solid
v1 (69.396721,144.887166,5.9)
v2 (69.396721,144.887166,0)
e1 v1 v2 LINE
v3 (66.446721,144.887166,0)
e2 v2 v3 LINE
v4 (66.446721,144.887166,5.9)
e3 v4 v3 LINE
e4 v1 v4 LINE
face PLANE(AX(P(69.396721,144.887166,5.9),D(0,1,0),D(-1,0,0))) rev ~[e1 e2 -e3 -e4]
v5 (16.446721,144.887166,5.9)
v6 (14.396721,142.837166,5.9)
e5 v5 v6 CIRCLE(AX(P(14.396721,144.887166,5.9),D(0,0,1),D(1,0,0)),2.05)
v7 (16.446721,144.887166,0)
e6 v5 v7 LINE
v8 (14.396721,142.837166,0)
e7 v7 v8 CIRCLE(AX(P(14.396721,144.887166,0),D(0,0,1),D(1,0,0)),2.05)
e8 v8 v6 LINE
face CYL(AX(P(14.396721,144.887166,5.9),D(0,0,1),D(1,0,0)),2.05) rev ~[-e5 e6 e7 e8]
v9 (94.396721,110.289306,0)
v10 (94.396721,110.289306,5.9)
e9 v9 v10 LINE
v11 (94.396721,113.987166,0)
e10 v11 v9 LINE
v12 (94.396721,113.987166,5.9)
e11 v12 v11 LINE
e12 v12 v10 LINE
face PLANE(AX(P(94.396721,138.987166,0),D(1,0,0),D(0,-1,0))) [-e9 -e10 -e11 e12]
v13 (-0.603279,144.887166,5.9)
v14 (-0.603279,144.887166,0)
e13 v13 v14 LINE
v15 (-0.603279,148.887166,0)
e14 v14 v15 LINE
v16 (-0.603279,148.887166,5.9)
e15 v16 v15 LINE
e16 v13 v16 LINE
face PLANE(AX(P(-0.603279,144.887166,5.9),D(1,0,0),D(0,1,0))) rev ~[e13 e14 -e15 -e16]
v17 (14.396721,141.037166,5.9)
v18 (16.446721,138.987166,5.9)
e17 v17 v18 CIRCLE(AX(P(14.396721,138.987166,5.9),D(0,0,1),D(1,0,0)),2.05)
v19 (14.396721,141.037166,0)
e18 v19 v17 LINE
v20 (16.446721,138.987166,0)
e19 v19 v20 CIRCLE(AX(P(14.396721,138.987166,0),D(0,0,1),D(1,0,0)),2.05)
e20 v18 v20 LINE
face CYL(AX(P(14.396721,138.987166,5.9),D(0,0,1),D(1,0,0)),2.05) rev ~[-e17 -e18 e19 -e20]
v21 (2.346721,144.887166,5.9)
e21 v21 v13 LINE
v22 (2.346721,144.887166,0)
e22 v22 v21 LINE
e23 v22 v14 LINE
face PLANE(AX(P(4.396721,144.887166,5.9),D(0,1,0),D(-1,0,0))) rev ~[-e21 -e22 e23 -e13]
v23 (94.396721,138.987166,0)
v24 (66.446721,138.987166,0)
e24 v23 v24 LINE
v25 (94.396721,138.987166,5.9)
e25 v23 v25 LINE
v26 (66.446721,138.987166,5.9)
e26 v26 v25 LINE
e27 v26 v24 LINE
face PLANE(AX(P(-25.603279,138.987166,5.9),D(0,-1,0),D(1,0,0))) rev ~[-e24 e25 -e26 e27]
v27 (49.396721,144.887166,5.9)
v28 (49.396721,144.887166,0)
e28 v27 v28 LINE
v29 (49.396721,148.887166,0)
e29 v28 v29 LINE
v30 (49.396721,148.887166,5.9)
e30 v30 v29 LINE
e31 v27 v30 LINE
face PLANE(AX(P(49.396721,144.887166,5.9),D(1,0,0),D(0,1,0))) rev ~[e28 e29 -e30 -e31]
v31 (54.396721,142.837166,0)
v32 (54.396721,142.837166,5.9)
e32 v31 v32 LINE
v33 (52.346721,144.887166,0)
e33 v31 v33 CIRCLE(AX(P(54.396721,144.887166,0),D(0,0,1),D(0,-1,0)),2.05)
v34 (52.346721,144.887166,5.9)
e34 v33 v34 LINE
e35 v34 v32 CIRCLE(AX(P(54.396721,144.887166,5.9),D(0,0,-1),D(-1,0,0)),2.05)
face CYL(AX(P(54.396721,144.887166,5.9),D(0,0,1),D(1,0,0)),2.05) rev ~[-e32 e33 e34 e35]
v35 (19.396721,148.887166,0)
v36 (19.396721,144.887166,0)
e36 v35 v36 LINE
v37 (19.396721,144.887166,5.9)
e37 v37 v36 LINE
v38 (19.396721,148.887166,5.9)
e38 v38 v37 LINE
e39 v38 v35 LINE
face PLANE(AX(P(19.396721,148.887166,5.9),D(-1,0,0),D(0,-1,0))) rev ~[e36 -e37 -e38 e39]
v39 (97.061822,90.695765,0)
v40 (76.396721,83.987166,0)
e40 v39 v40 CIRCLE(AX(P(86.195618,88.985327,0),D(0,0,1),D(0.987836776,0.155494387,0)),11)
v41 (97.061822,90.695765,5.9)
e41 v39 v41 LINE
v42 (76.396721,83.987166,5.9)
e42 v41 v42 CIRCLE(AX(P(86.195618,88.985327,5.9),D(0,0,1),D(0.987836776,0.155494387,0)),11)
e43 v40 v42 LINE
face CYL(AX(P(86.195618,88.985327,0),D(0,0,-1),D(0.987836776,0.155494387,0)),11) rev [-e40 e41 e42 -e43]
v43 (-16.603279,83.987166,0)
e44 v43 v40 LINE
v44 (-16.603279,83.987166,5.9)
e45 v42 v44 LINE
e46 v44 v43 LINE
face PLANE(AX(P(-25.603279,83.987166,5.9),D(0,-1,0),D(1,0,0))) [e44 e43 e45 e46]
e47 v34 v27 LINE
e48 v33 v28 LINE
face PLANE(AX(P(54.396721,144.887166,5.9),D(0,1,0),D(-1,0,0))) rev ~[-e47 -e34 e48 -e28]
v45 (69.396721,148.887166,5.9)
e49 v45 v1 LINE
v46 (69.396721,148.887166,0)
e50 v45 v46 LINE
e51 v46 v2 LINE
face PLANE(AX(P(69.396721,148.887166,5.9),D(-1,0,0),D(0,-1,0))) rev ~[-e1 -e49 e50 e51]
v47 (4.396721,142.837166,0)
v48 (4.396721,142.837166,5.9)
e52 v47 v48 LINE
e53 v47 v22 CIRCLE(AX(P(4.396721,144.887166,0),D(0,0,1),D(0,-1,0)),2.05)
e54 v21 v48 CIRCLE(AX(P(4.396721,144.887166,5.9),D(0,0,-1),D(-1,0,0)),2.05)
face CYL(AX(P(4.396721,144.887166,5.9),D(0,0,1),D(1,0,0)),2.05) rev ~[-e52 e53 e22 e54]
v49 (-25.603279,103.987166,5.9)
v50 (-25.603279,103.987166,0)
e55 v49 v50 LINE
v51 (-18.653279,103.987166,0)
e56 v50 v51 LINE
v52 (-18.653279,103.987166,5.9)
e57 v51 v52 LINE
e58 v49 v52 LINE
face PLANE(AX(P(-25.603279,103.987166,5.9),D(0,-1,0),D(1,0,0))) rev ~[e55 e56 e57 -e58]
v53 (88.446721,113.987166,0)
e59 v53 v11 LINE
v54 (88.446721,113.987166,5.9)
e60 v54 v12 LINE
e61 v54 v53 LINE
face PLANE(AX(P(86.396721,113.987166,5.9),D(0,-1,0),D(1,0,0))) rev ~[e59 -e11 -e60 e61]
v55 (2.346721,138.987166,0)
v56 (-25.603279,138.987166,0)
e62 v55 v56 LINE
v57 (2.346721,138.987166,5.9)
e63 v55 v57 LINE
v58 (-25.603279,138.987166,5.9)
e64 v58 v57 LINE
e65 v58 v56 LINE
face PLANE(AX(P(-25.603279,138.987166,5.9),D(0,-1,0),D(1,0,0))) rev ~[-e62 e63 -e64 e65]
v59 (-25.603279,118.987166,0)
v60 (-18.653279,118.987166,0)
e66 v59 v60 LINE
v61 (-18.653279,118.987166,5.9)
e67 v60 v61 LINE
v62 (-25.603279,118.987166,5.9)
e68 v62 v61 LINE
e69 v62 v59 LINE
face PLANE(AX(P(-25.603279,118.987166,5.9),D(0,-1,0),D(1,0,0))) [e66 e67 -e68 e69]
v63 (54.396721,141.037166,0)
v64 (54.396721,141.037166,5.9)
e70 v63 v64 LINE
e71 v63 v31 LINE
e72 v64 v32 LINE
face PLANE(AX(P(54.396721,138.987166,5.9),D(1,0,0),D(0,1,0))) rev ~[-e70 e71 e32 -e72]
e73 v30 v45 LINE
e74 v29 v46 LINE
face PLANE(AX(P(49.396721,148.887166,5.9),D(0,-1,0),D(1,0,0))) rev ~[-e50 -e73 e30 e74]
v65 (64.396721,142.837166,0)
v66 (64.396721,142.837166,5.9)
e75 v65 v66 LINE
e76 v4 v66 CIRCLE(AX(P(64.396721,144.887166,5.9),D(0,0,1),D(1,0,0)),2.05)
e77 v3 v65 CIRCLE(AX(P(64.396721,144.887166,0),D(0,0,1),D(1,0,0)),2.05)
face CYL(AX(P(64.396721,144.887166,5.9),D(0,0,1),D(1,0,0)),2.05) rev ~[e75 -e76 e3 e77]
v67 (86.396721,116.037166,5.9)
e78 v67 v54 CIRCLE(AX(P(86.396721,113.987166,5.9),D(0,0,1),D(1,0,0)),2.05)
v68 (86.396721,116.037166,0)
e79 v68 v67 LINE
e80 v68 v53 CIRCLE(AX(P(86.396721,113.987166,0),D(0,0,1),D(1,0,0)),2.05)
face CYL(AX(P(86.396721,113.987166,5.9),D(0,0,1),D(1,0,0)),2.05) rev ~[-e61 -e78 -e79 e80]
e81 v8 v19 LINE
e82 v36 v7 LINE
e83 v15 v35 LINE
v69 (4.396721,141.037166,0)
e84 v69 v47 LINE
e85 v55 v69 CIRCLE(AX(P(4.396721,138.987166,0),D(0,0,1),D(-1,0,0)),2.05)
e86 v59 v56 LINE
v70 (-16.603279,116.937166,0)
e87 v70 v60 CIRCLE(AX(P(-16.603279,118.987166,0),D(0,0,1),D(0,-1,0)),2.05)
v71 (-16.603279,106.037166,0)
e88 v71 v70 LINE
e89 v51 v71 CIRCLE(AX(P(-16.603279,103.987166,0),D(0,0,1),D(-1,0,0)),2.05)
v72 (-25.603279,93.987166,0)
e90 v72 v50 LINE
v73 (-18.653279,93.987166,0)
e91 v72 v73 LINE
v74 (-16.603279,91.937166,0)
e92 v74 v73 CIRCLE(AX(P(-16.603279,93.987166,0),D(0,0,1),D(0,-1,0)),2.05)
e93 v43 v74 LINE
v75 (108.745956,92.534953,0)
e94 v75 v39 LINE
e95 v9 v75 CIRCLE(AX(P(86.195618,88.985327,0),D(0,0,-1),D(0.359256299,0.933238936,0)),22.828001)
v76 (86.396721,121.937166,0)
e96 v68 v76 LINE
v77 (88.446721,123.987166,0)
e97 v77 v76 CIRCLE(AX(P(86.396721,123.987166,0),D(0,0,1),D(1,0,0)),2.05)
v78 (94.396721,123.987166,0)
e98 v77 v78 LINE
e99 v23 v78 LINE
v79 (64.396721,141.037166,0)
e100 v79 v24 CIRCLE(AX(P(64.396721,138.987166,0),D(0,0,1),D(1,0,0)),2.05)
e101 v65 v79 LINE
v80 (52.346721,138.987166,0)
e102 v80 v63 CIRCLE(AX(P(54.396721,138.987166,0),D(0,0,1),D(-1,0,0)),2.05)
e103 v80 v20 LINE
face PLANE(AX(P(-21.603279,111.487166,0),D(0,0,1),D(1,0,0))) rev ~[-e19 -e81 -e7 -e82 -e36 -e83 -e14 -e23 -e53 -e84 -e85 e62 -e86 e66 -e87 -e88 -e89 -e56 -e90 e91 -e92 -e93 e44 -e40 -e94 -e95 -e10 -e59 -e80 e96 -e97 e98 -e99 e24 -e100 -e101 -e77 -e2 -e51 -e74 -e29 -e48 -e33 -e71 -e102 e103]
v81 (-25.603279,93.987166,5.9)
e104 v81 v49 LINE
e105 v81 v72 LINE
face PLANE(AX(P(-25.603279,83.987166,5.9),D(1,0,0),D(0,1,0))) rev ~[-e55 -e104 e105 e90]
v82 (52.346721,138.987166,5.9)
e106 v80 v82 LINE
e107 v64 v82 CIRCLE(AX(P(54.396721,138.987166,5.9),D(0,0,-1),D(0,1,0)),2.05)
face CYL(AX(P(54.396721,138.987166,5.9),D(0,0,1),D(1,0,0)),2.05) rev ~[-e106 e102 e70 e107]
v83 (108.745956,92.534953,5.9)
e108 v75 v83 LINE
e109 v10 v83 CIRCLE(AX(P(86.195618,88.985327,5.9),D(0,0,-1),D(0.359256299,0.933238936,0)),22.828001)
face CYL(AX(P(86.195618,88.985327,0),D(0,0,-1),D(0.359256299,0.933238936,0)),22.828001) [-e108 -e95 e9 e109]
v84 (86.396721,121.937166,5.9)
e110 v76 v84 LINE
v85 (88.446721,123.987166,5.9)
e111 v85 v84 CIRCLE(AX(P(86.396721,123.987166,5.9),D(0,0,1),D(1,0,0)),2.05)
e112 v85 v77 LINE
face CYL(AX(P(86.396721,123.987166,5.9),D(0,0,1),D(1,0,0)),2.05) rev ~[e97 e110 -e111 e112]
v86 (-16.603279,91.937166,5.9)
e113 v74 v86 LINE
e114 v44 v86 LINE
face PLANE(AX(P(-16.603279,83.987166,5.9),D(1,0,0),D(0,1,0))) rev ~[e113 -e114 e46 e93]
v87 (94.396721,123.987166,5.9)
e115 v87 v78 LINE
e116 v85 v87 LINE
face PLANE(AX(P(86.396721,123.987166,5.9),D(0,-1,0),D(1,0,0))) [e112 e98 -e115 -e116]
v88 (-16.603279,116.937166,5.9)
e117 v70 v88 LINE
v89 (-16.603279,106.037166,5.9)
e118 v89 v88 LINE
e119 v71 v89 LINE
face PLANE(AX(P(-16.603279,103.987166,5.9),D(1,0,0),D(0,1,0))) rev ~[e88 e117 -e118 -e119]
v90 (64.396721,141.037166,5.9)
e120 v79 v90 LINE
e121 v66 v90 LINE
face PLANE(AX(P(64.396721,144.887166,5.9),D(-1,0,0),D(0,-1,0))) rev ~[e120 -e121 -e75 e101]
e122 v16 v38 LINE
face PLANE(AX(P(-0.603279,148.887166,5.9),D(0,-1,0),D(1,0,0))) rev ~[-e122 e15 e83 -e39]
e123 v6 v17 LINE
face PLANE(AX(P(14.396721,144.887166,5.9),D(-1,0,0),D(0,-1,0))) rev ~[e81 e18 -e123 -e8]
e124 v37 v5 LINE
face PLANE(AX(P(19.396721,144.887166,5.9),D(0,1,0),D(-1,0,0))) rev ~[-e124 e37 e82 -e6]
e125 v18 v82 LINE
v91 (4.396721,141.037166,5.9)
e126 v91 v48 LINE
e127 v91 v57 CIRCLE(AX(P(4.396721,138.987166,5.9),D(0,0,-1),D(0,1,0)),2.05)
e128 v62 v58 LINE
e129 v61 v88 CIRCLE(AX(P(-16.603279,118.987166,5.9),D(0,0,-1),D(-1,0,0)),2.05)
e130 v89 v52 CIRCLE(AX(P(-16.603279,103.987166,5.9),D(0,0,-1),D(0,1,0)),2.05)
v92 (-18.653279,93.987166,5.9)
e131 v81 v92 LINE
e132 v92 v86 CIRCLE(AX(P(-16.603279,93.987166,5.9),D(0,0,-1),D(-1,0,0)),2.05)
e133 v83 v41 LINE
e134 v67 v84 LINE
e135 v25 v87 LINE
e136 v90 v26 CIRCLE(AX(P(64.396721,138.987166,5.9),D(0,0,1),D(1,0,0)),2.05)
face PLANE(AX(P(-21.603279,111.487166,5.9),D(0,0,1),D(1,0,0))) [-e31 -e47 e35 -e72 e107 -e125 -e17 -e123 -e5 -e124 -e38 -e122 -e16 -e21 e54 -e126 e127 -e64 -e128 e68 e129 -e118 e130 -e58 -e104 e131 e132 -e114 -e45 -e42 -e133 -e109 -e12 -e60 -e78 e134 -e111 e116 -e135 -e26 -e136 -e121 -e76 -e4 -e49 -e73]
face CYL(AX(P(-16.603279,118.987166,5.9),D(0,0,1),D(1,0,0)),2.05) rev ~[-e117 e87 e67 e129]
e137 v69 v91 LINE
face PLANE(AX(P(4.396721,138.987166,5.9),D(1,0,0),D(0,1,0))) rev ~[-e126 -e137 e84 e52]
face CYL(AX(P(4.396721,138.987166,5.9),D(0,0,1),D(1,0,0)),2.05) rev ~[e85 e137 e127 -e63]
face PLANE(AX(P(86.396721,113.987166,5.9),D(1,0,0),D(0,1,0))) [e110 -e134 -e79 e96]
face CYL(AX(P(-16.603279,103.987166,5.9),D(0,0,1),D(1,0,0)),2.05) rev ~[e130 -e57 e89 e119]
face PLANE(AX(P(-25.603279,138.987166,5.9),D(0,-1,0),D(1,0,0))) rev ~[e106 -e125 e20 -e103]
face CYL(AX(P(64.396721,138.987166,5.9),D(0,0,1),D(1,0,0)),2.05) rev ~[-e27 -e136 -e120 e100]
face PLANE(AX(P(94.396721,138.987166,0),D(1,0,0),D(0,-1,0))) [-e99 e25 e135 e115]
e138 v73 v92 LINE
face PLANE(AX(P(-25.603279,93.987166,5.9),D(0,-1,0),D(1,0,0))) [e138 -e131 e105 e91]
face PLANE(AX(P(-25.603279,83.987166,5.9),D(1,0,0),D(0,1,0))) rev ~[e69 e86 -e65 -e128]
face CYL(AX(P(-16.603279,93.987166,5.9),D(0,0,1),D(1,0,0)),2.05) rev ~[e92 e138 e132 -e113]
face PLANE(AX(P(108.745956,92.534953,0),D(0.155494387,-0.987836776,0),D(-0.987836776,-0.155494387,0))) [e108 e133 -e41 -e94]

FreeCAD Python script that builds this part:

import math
import FreeCAD as App
import Part
import Sketcher

V = App.Vector
Q = App.Units.Quantity

doc = App.newDocument("Part")
body = doc.addObject("PartDesign::Body", "Body")

# Sketch on XY plane
sketch1 = body.newObject("Sketcher::SketchObject", "Sketch")
sketch1.AttachmentSupport = (doc.getObject("XY_Plane"), [""])
sketch1.MapMode = "FlatFace"
sketch1.addGeometry([
    Part.ArcOfCircle(Part.Circle(V(86.195618, 88.985327, 0), V(0, 0, 1), 11), math.radians(8.94547), math.radians(207.024942)),  # 0
    Part.LineSegment(V(97.061822, 90.695765, 0), V(108.745956, 92.534953, 0)),  # 1
    Part.ArcOfCircle(Part.Circle(V(86.195618, 88.985327, 0), V(0, 0, 1), 22.828001), math.radians(8.94547), math.radians(68.94547)),  # 2
    Part.LineSegment(V(94.396721, 110.289306, 0), V(94.396721, 138.987166, 0)),  # 3
    Part.LineSegment(V(94.396721, 138.987166, 0), V(-17.603279, 138.987166, 0)),  # 4
    Part.LineSegment(V(-17.603279, 138.987166, 0), V(-17.603279, 83.987166, 0)),  # 5
    Part.LineSegment(V(-17.603279, 83.987166, 0), V(76.396721, 83.987166, 0)),  # 6
], False)
sketch1.addConstraint([
    Sketcher.Constraint("Coincident", 0, 1, 1, 1),
    Sketcher.Constraint("Coincident", 1, 2, 2, 1),
    Sketcher.Constraint("Coincident", 2, 2, 3, 1),
    Sketcher.Constraint("Coincident", 3, 2, 4, 1),
    Sketcher.Constraint("Coincident", 4, 2, 5, 1),
    Sketcher.Constraint("Coincident", 5, 2, 6, 1),
    Sketcher.Constraint("Coincident", 6, 2, 0, 2),
    Sketcher.Constraint("Vertical", 3),
    Sketcher.Constraint("Horizontal", 4),
    Sketcher.Constraint("Vertical", 5),
    Sketcher.Constraint("Horizontal", 6),
    Sketcher.Constraint("Coincident", 2, 3, 0, 3),
    Sketcher.Constraint("Radius", 0, Q("11 mm")),
    Sketcher.Constraint("DistanceX", 4, 2, 4, 1, Q("112 mm")),
    Sketcher.Constraint("DistanceX", 6, 1, 6, 2, Q("94 mm")),
    Sketcher.Constraint("DistanceY", 5, 2, 5, 1, Q("55 mm")),
    Sketcher.Constraint("Radius", 2, Q("22.828001 mm")),
    Sketcher.Constraint("DistanceY", 3, 1, 3, 2, Q("28.697859 mm")),
    Sketcher.Constraint("DistanceX", 2, 2, 0, 1, Q("2.665101 mm")),
    Sketcher.Constraint("DistanceX", -1, 1, 2, 2, Q("94.396721 mm")),
    Sketcher.Constraint("DistanceX", 0, 3, 1, 2, Q("22.550339 mm")),
    Sketcher.Constraint("DistanceY", -1, 1, 0, 3, Q("88.985327 mm")),
])
pad1 = body.newObject("PartDesign::Pad", "Pad")
pad1.Profile = sketch1
pad1.Length = 5.9

# Sketch on XY plane
sketch2 = body.newObject("Sketcher::SketchObject", "Sketch001")
sketch2.AttachmentSupport = (doc.getObject("XY_Plane"), [""])
sketch2.MapMode = "FlatFace"
sketch2.AttachmentOffset = App.Placement(V(0, 0, 5.9), App.Rotation())
sketch2.addGeometry([
    Part.LineSegment(V(-25.603279, 138.987166, 0), V(-25.603279, 83.987166, 0)),
    Part.LineSegment(V(-25.603279, 83.987166, 0), V(-17.603279, 83.987166, 0)),
    Part.LineSegment(V(-17.603279, 83.987166, 0), V(-17.603279, 138.987166, 0)),
    Part.LineSegment(V(-17.603279, 138.987166, 0), V(-25.603279, 138.987166, 0)),
], False)
sketch2.addConstraint([
    Sketcher.Constraint("Coincident", 0, 2, 1, 1),
    Sketcher.Constraint("Coincident", 1, 2, 2, 1),
    Sketcher.Constraint("Coincident", 2, 2, 3, 1),
    Sketcher.Constraint("Coincident", 3, 2, 0, 1),
    Sketcher.Constraint("Vertical", 0),
    Sketcher.Constraint("Horizontal", 1),
    Sketcher.Constraint("Vertical", 2),
    Sketcher.Constraint("Horizontal", 3),
    Sketcher.Constraint("DistanceX", 1, 1, 1, 2, Q("8 mm")),
    Sketcher.Constraint("DistanceY", 0, 2, 0, 1, Q("55 mm")),
    Sketcher.Constraint("DistanceX", 0, 2, -1, 1, Q("25.603279 mm")),
    Sketcher.Constraint("DistanceY", -1, 1, 0, 2, Q("83.987166 mm")),
])
pad2 = body.newObject("PartDesign::Pad", "Pad001")
pad2.Profile = sketch2
pad2.Length = 5.9
pad2.Reversed = True

# Sketch on XY plane
sketch3 = body.newObject("Sketcher::SketchObject", "Sketch002")
sketch3.AttachmentSupport = (doc.getObject("XY_Plane"), [""])
sketch3.MapMode = "FlatFace"
sketch3.AttachmentOffset = App.Placement(V(0, 0, 5.9), App.Rotation())
sketch3.addGeometry([
    Part.LineSegment(V(-25.603279, 118.987166, 0), V(-25.603279, 103.987166, 0)),  # 0
    Part.LineSegment(V(-25.603279, 103.987166, 0), V(-16.603279, 103.987166, 0)),  # 1
    Part.LineSegment(V(-16.603279, 103.987166, 0), V(-16.603279, 118.987166, 0)),  # 2
    Part.LineSegment(V(-16.603279, 118.987166, 0), V(-25.603279, 118.987166, 0)),  # 3
    Part.LineSegment(V(86.396721, 123.987166, 0), V(86.396721, 113.987166, 0)),  # 4
    Part.LineSegment(V(86.396721, 113.987166, 0), V(94.396721, 113.987166, 0)),  # 5
    Part.LineSegment(V(94.396721, 113.987166, 0), V(94.396721, 123.987166, 0)),  # 6
    Part.LineSegment(V(94.396721, 123.987166, 0), V(86.396721, 123.987166, 0)),  # 7
    Part.LineSegment(V(-25.603279, 93.987166, 0), V(-25.603279, 83.987166, 0)),  # 8
    Part.LineSegment(V(-25.603279, 83.987166, 0), V(-16.603279, 83.987166, 0)),  # 9
    Part.LineSegment(V(-16.603279, 83.987166, 0), V(-16.603279, 93.987166, 0)),  # 10
    Part.LineSegment(V(-16.603279, 93.987166, 0), V(-25.603279, 93.987166, 0)),  # 11
], False)
sketch3.addConstraint([
    Sketcher.Constraint("Coincident", 0, 2, 1, 1),
    Sketcher.Constraint("Coincident", 1, 2, 2, 1),
    Sketcher.Constraint("Coincident", 2, 2, 3, 1),
    Sketcher.Constraint("Coincident", 3, 2, 0, 1),
    Sketcher.Constraint("Coincident", 4, 2, 5, 1),
    Sketcher.Constraint("Coincident", 5, 2, 6, 1),
    Sketcher.Constraint("Coincident", 6, 2, 7, 1),
    Sketcher.Constraint("Coincident", 7, 2, 4, 1),
    Sketcher.Constraint("Coincident", 8, 2, 9, 1),
    Sketcher.Constraint("Coincident", 9, 2, 10, 1),
    Sketcher.Constraint("Coincident", 10, 2, 11, 1),
    Sketcher.Constraint("Coincident", 11, 2, 8, 1),
    Sketcher.Constraint("Vertical", 0),
    Sketcher.Constraint("Horizontal", 1),
    Sketcher.Constraint("Vertical", 2),
    Sketcher.Constraint("Horizontal", 3),
    Sketcher.Constraint("Vertical", 4),
    Sketcher.Constraint("Horizontal", 5),
    Sketcher.Constraint("Vertical", 6),
    Sketcher.Constraint("Horizontal", 7),
    Sketcher.Constraint("Vertical", 8),
    Sketcher.Constraint("Horizontal", 9),
    Sketcher.Constraint("Vertical", 10),
    Sketcher.Constraint("Horizontal", 11),
    Sketcher.Constraint("Vertical", 3, 2, 8, 2),
    Sketcher.Constraint("Vertical", 2, 2, 9, 2),
    Sketcher.Constraint("Equal", 6, 8),
    Sketcher.Constraint("DistanceX", 1, 1, 1, 2, Q("9 mm")),
    Sketcher.Constraint("DistanceX", 5, 1, 5, 2, Q("8 mm")),
    Sketcher.Constraint("DistanceY", 0, 2, 0, 1, Q("15 mm")),
    Sketcher.Constraint("DistanceY", 4, 2, 4, 1, Q("10 mm")),
    Sketcher.Constraint("DistanceX", 2, 2, 4, 2, Q("103 mm")),
    Sketcher.Constraint("DistanceY", 4, 2, 2, 2, Q("5 mm")),
    Sketcher.Constraint("DistanceY", 8, 2, 0, 2, Q("20 mm")),
    Sketcher.Constraint("DistanceX", 0, 2, -1, 1, Q("25.603279 mm")),
    Sketcher.Constraint("DistanceY", -1, 1, 0, 2, Q("103.987166 mm")),
])
pocket1 = body.newObject("PartDesign::Pocket", "Pocket")
pocket1.Profile = sketch3
pocket1.Type = "ThroughAll"

# Sketch on XY plane
sketch4 = body.newObject("Sketcher::SketchObject", "Sketch003")
sketch4.AttachmentSupport = (doc.getObject("XY_Plane"), [""])
sketch4.MapMode = "FlatFace"
sketch4.AttachmentOffset = App.Placement(V(0, 0, 5.9), App.Rotation())
sketch4.addGeometry([
    Part.LineSegment(V(4.396721, 144.887166, 0), V(4.396721, 138.987166, 0)),  # 0
    Part.LineSegment(V(4.396721, 138.987166, 0), V(14.396721, 138.987166, 0)),  # 1
    Part.LineSegment(V(14.396721, 138.987166, 0), V(14.396721, 144.887166, 0)),  # 2
    Part.LineSegment(V(14.396721, 144.887166, 0), V(19.396721, 144.887166, 0)),  # 3
    Part.LineSegment(V(19.396721, 144.887166, 0), V(19.396721, 148.887166, 0)),  # 4
    Part.LineSegment(V(19.396721, 148.887166, 0), V(-0.603279, 148.887166, 0)),  # 5
    Part.LineSegment(V(-0.603279, 148.887166, 0), V(-0.603279, 144.887166, 0)),  # 6
    Part.LineSegment(V(-0.603279, 144.887166, 0), V(4.396721, 144.887166, 0)),  # 7
    Part.LineSegment(V(49.396721, 148.887166, 0), V(49.396721, 144.887166, 0)),  # 8
    Part.LineSegment(V(49.396721, 144.887166, 0), V(54.396721, 144.887166, 0)),  # 9
    Part.LineSegment(V(54.396721, 144.887166, 0), V(54.396721, 138.987166, 0)),  # 10
    Part.LineSegment(V(54.396721, 138.987166, 0), V(64.396721, 138.987166, 0)),  # 11
    Part.LineSegment(V(64.396721, 138.987166, 0), V(64.396721, 144.887166, 0)),  # 12
    Part.LineSegment(V(64.396721, 144.887166, 0), V(69.396721, 144.887166, 0)),  # 13
    Part.LineSegment(V(69.396721, 144.887166, 0), V(69.396721, 148.887166, 0)),  # 14
    Part.LineSegment(V(69.396721, 148.887166, 0), V(49.396721, 148.887166, 0)),  # 15
], False)
sketch4.addConstraint([
    Sketcher.Constraint("Coincident", 0, 2, 1, 1),
    Sketcher.Constraint("Coincident", 1, 2, 2, 1),
    Sketcher.Constraint("Coincident", 2, 2, 3, 1),
    Sketcher.Constraint("Coincident", 3, 2, 4, 1),
    Sketcher.Constraint("Coincident", 4, 2, 5, 1),
    Sketcher.Constraint("Coincident", 5, 2, 6, 1),
    Sketcher.Constraint("Coincident", 6, 2, 7, 1),
    Sketcher.Constraint("Coincident", 7, 2, 0, 1),
    Sketcher.Constraint("Coincident", 8, 2, 9, 1),
    Sketcher.Constraint("Coincident", 9, 2, 10, 1),
    Sketcher.Constraint("Coincident", 10, 2, 11, 1),
    Sketcher.Constraint("Coincident", 11, 2, 12, 1),
    Sketcher.Constraint("Coincident", 12, 2, 13, 1),
    Sketcher.Constraint("Coincident", 13, 2, 14, 1),
    Sketcher.Constraint("Coincident", 14, 2, 15, 1),
    Sketcher.Constraint("Coincident", 15, 2, 8, 1),
    Sketcher.Constraint("Vertical", 0),
    Sketcher.Constraint("Horizontal", 1),
    Sketcher.Constraint("Vertical", 2),
    Sketcher.Constraint("Horizontal", 3),
    Sketcher.Constraint("Vertical", 4),
    Sketcher.Constraint("Horizontal", 5),
    Sketcher.Constraint("Vertical", 6),
    Sketcher.Constraint("Horizontal", 7),
    Sketcher.Constraint("Vertical", 8),
    Sketcher.Constraint("Horizontal", 9),
    Sketcher.Constraint("Vertical", 10),
    Sketcher.Constraint("Horizontal", 11),
    Sketcher.Constraint("Vertical", 12),
    Sketcher.Constraint("Horizontal", 13),
    Sketcher.Constraint("Vertical", 14),
    Sketcher.Constraint("Horizontal", 15),
    Sketcher.Constraint("Horizontal", 3, 2, 6, 2),
    Sketcher.Constraint("Horizontal", 7, 2, 8, 2),
    Sketcher.Constraint("Horizontal", 1, 2, 10, 2),
    Sketcher.Constraint("Horizontal", 9, 2, 12, 2),
    Sketcher.Constraint("Horizontal", 5, 2, 14, 2),
    Sketcher.Constraint("Equal", 3, 7),
    Sketcher.Constraint("Equal", 7, 9),
    Sketcher.Constraint("Equal", 1, 11),
    Sketcher.Constraint("Equal", 9, 13),
    Sketcher.Constraint("DistanceX", 1, 1, 1, 2, Q("10 mm")),
    Sketcher.Constraint("DistanceX", 3, 1, 3, 2, Q("5 mm")),
    Sketcher.Constraint("DistanceY", 4, 1, 4, 2, Q("4 mm")),
    Sketcher.Constraint("DistanceY", 0, 2, 0, 1, Q("5.9 mm")),
    Sketcher.Constraint("DistanceX", 3, 2, 8, 2, Q("30 mm")),
    Sketcher.Constraint("DistanceX", -1, 1, 0, 2, Q("4.396721 mm")),
    Sketcher.Constraint("DistanceY", -1, 1, 0, 2, Q("138.987166 mm")),
])
pad3 = body.newObject("PartDesign::Pad", "Pad002")
pad3.Profile = sketch4
pad3.Length = 5.9
pad3.Reversed = True

# Sketch on XY plane
sketch5 = body.newObject("Sketcher::SketchObject", "Sketch004")
sketch5.AttachmentSupport = (doc.getObject("XY_Plane"), [""])
sketch5.MapMode = "FlatFace"
sketch5.AttachmentOffset = App.Placement(V(0, 0, 5.9), App.Rotation())
sketch5.addGeometry(Part.Circle(V(-16.603279, 93.987166, 0), V(0, 0, 1), 2.05), False)
sketch5.addConstraint([
    Sketcher.Constraint("Diameter", 0, Q("4.1 mm")),
    Sketcher.Constraint("DistanceX", 0, 3, -1, 1, Q("16.603279 mm")),
    Sketcher.Constraint("DistanceY", -1, 1, 0, 3, Q("93.987166 mm")),
])
pocket2 = body.newObject("PartDesign::Pocket", "Pocket001")
pocket2.Profile = sketch5
pocket2.Type = "UpToFirst"

# Sketch on XY plane
sketch6 = body.newObject("Sketcher::SketchObject", "Sketch005")
sketch6.AttachmentSupport = (doc.getObject("XY_Plane"), [""])
sketch6.MapMode = "FlatFace"
sketch6.AttachmentOffset = App.Placement(V(0, 0, 5.9), App.Rotation())
sketch6.addGeometry(Part.Circle(V(-16.603279, 103.987166, 0), V(0, 0, 1), 2.05), False)
sketch6.addConstraint([
    Sketcher.Constraint("Diameter", 0, Q("4.1 mm")),
    Sketcher.Constraint("DistanceX", 0, 3, -1, 1, Q("16.603279 mm")),
    Sketcher.Constraint("DistanceY", -1, 1, 0, 3, Q("103.987166 mm")),
])
pocket3 = body.newObject("PartDesign::Pocket", "Pocket002")
pocket3.Profile = sketch6
pocket3.Type = "UpToFirst"

# Sketch on XY plane
sketch7 = body.newObject("Sketcher::SketchObject", "Sketch006")
sketch7.AttachmentSupport = (doc.getObject("XY_Plane"), [""])
sketch7.MapMode = "FlatFace"
sketch7.AttachmentOffset = App.Placement(V(0, 0, 5.9), App.Rotation())
sketch7.addGeometry(Part.Circle(V(-16.603279, 118.987166, 0), V(0, 0, 1), 2.05), False)
sketch7.addConstraint([
    Sketcher.Constraint("Diameter", 0, Q("4.1 mm")),
    Sketcher.Constraint("DistanceX", 0, 3, -1, 1, Q("16.603279 mm")),
    Sketcher.Constraint("DistanceY", -1, 1, 0, 3, Q("118.987166 mm")),
])
pocket4 = body.newObject("PartDesign::Pocket", "Pocket003")
pocket4.Profile = sketch7
pocket4.Type = "UpToFirst"

# Sketch on XY plane
sketch8 = body.newObject("Sketcher::SketchObject", "Sketch007")
sketch8.AttachmentSupport = (doc.getObject("XY_Plane"), [""])
sketch8.MapMode = "FlatFace"
sketch8.AttachmentOffset = App.Placement(V(0, 0, 5.9), App.Rotation())
sketch8.addGeometry(Part.Circle(V(4.396721, 138.987166, 0), V(0, 0, 1), 2.05), False)
sketch8.addConstraint([
    Sketcher.Constraint("Diameter", 0, Q("4.1 mm")),
    Sketcher.Constraint("DistanceX", -1, 1, 0, 3, Q("4.396721 mm")),
    Sketcher.Constraint("DistanceY", -1, 1, 0, 3, Q("138.987166 mm")),
])
pocket5 = body.newObject("PartDesign::Pocket", "Pocket004")
pocket5.Profile = sketch8
pocket5.Type = "UpToFirst"

# Sketch on XY plane
sketch9 = body.newObject("Sketcher::SketchObject", "Sketch008")
sketch9.AttachmentSupport = (doc.getObject("XY_Plane"), [""])
sketch9.MapMode = "FlatFace"
sketch9.AttachmentOffset = App.Placement(V(0, 0, 5.9), App.Rotation())
sketch9.addGeometry(Part.Circle(V(14.396721, 138.987166, 0), V(0, 0, 1), 2.05), False)
sketch9.addConstraint([
    Sketcher.Constraint("Diameter", 0, Q("4.1 mm")),
    Sketcher.Constraint("DistanceX", -1, 1, 0, 3, Q("14.396721 mm")),
    Sketcher.Constraint("DistanceY", -1, 1, 0, 3, Q("138.987166 mm")),
])
pocket6 = body.newObject("PartDesign::Pocket", "Pocket005")
pocket6.Profile = sketch9
pocket6.Type = "UpToFirst"

# Sketch on XY plane
sketch10 = body.newObject("Sketcher::SketchObject", "Sketch009")
sketch10.AttachmentSupport = (doc.getObject("XY_Plane"), [""])
sketch10.MapMode = "FlatFace"
sketch10.AttachmentOffset = App.Placement(V(0, 0, 5.9), App.Rotation())
sketch10.addGeometry(Part.Circle(V(14.396721, 144.887166, 0), V(0, 0, 1), 2.05), False)
sketch10.addConstraint([
    Sketcher.Constraint("Diameter", 0, Q("4.1 mm")),
    Sketcher.Constraint("DistanceX", -1, 1, 0, 3, Q("14.396721 mm")),
    Sketcher.Constraint("DistanceY", -1, 1, 0, 3, Q("144.887166 mm")),
])
pocket7 = body.newObject("PartDesign::Pocket", "Pocket006")
pocket7.Profile = sketch10
pocket7.Type = "UpToFirst"

# Sketch on XY plane
sketch11 = body.newObject("Sketcher::SketchObject", "Sketch010")
sketch11.AttachmentSupport = (doc.getObject("XY_Plane"), [""])
sketch11.MapMode = "FlatFace"
sketch11.AttachmentOffset = App.Placement(V(0, 0, 5.9), App.Rotation())
sketch11.addGeometry(Part.Circle(V(4.396721, 144.887166, 0), V(0, 0, 1), 2.05), False)
sketch11.addConstraint([
    Sketcher.Constraint("Diameter", 0, Q("4.1 mm")),
    Sketcher.Constraint("DistanceX", -1, 1, 0, 3, Q("4.396721 mm")),
    Sketcher.Constraint("DistanceY", -1, 1, 0, 3, Q("144.887166 mm")),
])
pocket8 = body.newObject("PartDesign::Pocket", "Pocket007")
pocket8.Profile = sketch11
pocket8.Type = "UpToFirst"

# Sketch on XY plane
sketch12 = body.newObject("Sketcher::SketchObject", "Sketch011")
sketch12.AttachmentSupport = (doc.getObject("XY_Plane"), [""])
sketch12.MapMode = "FlatFace"
sketch12.AttachmentOffset = App.Placement(V(0, 0, 5.9), App.Rotation())
sketch12.addGeometry(Part.Circle(V(54.396721, 144.887166, 0), V(0, 0, 1), 2.05), False)
sketch12.addConstraint([
    Sketcher.Constraint("Diameter", 0, Q("4.1 mm")),
    Sketcher.Constraint("DistanceX", -1, 1, 0, 3, Q("54.396721 mm")),
    Sketcher.Constraint("DistanceY", -1, 1, 0, 3, Q("144.887166 mm")),
])
pocket9 = body.newObject("PartDesign::Pocket", "Pocket008")
pocket9.Profile = sketch12
pocket9.Type = "UpToFirst"

# Sketch on XY plane
sketch13 = body.newObject("Sketcher::SketchObject", "Sketch012")
sketch13.AttachmentSupport = (doc.getObject("XY_Plane"), [""])
sketch13.MapMode = "FlatFace"
sketch13.AttachmentOffset = App.Placement(V(0, 0, 5.9), App.Rotation())
sketch13.addGeometry(Part.Circle(V(64.396721, 144.887166, 0), V(0, 0, 1), 2.05), False)
sketch13.addConstraint([
    Sketcher.Constraint("Diameter", 0, Q("4.1 mm")),
    Sketcher.Constraint("DistanceX", -1, 1, 0, 3, Q("64.396721 mm")),
    Sketcher.Constraint("DistanceY", -1, 1, 0, 3, Q("144.887166 mm")),
])
pocket10 = body.newObject("PartDesign::Pocket", "Pocket009")
pocket10.Profile = sketch13
pocket10.Type = "UpToFirst"

# Sketch on XY plane
sketch14 = body.newObject("Sketcher::SketchObject", "Sketch013")
sketch14.AttachmentSupport = (doc.getObject("XY_Plane"), [""])
sketch14.MapMode = "FlatFace"
sketch14.AttachmentOffset = App.Placement(V(0, 0, 5.9), App.Rotation())
sketch14.addGeometry(Part.Circle(V(64.396721, 138.987166, 0), V(0, 0, 1), 2.05), False)
sketch14.addConstraint([
    Sketcher.Constraint("Diameter", 0, Q("4.1 mm")),
    Sketcher.Constraint("DistanceX", -1, 1, 0, 3, Q("64.396721 mm")),
    Sketcher.Constraint("DistanceY", -1, 1, 0, 3, Q("138.987166 mm")),
])
pocket11 = body.newObject("PartDesign::Pocket", "Pocket010")
pocket11.Profile = sketch14
pocket11.Type = "UpToFirst"

# Sketch on XY plane
sketch15 = body.newObject("Sketcher::SketchObject", "Sketch014")
sketch15.AttachmentSupport = (doc.getObject("XY_Plane"), [""])
sketch15.MapMode = "FlatFace"
sketch15.AttachmentOffset = App.Placement(V(0, 0, 5.9), App.Rotation())
sketch15.addGeometry(Part.Circle(V(54.396721, 138.987166, 0), V(0, 0, 1), 2.05), False)
sketch15.addConstraint([
    Sketcher.Constraint("Diameter", 0, Q("4.1 mm")),
    Sketcher.Constraint("DistanceX", -1, 1, 0, 3, Q("54.396721 mm")),
    Sketcher.Constraint("DistanceY", -1, 1, 0, 3, Q("138.987166 mm")),
])
pocket12 = body.newObject("PartDesign::Pocket", "Pocket011")
pocket12.Profile = sketch15
pocket12.Type = "UpToFirst"

# Sketch on XY plane
sketch16 = body.newObject("Sketcher::SketchObject", "Sketch015")
sketch16.AttachmentSupport = (doc.getObject("XY_Plane"), [""])
sketch16.MapMode = "FlatFace"
sketch16.AttachmentOffset = App.Placement(V(0, 0, 5.9), App.Rotation())
sketch16.addGeometry(Part.Circle(V(86.396721, 123.987166, 0), V(0, 0, 1), 2.05), False)
sketch16.addConstraint([
    Sketcher.Constraint("Diameter", 0, Q("4.1 mm")),
    Sketcher.Constraint("DistanceX", -1, 1, 0, 3, Q("86.396721 mm")),
    Sketcher.Constraint("DistanceY", -1, 1, 0, 3, Q("123.987166 mm")),
])
pocket13 = body.newObject("PartDesign::Pocket", "Pocket012")
pocket13.Profile = sketch16
pocket13.Type = "UpToFirst"

# Sketch on XY plane
sketch17 = body.newObject("Sketcher::SketchObject", "Sketch016")
sketch17.AttachmentSupport = (doc.getObject("XY_Plane"), [""])
sketch17.MapMode = "FlatFace"
sketch17.AttachmentOffset = App.Placement(V(0, 0, 5.9), App.Rotation())
sketch17.addGeometry(Part.Circle(V(86.396721, 113.987166, 0), V(0, 0, 1), 2.05), False)
sketch17.addConstraint([
    Sketcher.Constraint("Diameter", 0, Q("4.1 mm")),
    Sketcher.Constraint("DistanceX", -1, 1, 0, 3, Q("86.396721 mm")),
    Sketcher.Constraint("DistanceY", -1, 1, 0, 3, Q("113.987166 mm")),
])
pocket14 = body.newObject("PartDesign::Pocket", "Pocket013")
pocket14.Profile = sketch17
pocket14.Type = "UpToFirst"

doc.recompute()
